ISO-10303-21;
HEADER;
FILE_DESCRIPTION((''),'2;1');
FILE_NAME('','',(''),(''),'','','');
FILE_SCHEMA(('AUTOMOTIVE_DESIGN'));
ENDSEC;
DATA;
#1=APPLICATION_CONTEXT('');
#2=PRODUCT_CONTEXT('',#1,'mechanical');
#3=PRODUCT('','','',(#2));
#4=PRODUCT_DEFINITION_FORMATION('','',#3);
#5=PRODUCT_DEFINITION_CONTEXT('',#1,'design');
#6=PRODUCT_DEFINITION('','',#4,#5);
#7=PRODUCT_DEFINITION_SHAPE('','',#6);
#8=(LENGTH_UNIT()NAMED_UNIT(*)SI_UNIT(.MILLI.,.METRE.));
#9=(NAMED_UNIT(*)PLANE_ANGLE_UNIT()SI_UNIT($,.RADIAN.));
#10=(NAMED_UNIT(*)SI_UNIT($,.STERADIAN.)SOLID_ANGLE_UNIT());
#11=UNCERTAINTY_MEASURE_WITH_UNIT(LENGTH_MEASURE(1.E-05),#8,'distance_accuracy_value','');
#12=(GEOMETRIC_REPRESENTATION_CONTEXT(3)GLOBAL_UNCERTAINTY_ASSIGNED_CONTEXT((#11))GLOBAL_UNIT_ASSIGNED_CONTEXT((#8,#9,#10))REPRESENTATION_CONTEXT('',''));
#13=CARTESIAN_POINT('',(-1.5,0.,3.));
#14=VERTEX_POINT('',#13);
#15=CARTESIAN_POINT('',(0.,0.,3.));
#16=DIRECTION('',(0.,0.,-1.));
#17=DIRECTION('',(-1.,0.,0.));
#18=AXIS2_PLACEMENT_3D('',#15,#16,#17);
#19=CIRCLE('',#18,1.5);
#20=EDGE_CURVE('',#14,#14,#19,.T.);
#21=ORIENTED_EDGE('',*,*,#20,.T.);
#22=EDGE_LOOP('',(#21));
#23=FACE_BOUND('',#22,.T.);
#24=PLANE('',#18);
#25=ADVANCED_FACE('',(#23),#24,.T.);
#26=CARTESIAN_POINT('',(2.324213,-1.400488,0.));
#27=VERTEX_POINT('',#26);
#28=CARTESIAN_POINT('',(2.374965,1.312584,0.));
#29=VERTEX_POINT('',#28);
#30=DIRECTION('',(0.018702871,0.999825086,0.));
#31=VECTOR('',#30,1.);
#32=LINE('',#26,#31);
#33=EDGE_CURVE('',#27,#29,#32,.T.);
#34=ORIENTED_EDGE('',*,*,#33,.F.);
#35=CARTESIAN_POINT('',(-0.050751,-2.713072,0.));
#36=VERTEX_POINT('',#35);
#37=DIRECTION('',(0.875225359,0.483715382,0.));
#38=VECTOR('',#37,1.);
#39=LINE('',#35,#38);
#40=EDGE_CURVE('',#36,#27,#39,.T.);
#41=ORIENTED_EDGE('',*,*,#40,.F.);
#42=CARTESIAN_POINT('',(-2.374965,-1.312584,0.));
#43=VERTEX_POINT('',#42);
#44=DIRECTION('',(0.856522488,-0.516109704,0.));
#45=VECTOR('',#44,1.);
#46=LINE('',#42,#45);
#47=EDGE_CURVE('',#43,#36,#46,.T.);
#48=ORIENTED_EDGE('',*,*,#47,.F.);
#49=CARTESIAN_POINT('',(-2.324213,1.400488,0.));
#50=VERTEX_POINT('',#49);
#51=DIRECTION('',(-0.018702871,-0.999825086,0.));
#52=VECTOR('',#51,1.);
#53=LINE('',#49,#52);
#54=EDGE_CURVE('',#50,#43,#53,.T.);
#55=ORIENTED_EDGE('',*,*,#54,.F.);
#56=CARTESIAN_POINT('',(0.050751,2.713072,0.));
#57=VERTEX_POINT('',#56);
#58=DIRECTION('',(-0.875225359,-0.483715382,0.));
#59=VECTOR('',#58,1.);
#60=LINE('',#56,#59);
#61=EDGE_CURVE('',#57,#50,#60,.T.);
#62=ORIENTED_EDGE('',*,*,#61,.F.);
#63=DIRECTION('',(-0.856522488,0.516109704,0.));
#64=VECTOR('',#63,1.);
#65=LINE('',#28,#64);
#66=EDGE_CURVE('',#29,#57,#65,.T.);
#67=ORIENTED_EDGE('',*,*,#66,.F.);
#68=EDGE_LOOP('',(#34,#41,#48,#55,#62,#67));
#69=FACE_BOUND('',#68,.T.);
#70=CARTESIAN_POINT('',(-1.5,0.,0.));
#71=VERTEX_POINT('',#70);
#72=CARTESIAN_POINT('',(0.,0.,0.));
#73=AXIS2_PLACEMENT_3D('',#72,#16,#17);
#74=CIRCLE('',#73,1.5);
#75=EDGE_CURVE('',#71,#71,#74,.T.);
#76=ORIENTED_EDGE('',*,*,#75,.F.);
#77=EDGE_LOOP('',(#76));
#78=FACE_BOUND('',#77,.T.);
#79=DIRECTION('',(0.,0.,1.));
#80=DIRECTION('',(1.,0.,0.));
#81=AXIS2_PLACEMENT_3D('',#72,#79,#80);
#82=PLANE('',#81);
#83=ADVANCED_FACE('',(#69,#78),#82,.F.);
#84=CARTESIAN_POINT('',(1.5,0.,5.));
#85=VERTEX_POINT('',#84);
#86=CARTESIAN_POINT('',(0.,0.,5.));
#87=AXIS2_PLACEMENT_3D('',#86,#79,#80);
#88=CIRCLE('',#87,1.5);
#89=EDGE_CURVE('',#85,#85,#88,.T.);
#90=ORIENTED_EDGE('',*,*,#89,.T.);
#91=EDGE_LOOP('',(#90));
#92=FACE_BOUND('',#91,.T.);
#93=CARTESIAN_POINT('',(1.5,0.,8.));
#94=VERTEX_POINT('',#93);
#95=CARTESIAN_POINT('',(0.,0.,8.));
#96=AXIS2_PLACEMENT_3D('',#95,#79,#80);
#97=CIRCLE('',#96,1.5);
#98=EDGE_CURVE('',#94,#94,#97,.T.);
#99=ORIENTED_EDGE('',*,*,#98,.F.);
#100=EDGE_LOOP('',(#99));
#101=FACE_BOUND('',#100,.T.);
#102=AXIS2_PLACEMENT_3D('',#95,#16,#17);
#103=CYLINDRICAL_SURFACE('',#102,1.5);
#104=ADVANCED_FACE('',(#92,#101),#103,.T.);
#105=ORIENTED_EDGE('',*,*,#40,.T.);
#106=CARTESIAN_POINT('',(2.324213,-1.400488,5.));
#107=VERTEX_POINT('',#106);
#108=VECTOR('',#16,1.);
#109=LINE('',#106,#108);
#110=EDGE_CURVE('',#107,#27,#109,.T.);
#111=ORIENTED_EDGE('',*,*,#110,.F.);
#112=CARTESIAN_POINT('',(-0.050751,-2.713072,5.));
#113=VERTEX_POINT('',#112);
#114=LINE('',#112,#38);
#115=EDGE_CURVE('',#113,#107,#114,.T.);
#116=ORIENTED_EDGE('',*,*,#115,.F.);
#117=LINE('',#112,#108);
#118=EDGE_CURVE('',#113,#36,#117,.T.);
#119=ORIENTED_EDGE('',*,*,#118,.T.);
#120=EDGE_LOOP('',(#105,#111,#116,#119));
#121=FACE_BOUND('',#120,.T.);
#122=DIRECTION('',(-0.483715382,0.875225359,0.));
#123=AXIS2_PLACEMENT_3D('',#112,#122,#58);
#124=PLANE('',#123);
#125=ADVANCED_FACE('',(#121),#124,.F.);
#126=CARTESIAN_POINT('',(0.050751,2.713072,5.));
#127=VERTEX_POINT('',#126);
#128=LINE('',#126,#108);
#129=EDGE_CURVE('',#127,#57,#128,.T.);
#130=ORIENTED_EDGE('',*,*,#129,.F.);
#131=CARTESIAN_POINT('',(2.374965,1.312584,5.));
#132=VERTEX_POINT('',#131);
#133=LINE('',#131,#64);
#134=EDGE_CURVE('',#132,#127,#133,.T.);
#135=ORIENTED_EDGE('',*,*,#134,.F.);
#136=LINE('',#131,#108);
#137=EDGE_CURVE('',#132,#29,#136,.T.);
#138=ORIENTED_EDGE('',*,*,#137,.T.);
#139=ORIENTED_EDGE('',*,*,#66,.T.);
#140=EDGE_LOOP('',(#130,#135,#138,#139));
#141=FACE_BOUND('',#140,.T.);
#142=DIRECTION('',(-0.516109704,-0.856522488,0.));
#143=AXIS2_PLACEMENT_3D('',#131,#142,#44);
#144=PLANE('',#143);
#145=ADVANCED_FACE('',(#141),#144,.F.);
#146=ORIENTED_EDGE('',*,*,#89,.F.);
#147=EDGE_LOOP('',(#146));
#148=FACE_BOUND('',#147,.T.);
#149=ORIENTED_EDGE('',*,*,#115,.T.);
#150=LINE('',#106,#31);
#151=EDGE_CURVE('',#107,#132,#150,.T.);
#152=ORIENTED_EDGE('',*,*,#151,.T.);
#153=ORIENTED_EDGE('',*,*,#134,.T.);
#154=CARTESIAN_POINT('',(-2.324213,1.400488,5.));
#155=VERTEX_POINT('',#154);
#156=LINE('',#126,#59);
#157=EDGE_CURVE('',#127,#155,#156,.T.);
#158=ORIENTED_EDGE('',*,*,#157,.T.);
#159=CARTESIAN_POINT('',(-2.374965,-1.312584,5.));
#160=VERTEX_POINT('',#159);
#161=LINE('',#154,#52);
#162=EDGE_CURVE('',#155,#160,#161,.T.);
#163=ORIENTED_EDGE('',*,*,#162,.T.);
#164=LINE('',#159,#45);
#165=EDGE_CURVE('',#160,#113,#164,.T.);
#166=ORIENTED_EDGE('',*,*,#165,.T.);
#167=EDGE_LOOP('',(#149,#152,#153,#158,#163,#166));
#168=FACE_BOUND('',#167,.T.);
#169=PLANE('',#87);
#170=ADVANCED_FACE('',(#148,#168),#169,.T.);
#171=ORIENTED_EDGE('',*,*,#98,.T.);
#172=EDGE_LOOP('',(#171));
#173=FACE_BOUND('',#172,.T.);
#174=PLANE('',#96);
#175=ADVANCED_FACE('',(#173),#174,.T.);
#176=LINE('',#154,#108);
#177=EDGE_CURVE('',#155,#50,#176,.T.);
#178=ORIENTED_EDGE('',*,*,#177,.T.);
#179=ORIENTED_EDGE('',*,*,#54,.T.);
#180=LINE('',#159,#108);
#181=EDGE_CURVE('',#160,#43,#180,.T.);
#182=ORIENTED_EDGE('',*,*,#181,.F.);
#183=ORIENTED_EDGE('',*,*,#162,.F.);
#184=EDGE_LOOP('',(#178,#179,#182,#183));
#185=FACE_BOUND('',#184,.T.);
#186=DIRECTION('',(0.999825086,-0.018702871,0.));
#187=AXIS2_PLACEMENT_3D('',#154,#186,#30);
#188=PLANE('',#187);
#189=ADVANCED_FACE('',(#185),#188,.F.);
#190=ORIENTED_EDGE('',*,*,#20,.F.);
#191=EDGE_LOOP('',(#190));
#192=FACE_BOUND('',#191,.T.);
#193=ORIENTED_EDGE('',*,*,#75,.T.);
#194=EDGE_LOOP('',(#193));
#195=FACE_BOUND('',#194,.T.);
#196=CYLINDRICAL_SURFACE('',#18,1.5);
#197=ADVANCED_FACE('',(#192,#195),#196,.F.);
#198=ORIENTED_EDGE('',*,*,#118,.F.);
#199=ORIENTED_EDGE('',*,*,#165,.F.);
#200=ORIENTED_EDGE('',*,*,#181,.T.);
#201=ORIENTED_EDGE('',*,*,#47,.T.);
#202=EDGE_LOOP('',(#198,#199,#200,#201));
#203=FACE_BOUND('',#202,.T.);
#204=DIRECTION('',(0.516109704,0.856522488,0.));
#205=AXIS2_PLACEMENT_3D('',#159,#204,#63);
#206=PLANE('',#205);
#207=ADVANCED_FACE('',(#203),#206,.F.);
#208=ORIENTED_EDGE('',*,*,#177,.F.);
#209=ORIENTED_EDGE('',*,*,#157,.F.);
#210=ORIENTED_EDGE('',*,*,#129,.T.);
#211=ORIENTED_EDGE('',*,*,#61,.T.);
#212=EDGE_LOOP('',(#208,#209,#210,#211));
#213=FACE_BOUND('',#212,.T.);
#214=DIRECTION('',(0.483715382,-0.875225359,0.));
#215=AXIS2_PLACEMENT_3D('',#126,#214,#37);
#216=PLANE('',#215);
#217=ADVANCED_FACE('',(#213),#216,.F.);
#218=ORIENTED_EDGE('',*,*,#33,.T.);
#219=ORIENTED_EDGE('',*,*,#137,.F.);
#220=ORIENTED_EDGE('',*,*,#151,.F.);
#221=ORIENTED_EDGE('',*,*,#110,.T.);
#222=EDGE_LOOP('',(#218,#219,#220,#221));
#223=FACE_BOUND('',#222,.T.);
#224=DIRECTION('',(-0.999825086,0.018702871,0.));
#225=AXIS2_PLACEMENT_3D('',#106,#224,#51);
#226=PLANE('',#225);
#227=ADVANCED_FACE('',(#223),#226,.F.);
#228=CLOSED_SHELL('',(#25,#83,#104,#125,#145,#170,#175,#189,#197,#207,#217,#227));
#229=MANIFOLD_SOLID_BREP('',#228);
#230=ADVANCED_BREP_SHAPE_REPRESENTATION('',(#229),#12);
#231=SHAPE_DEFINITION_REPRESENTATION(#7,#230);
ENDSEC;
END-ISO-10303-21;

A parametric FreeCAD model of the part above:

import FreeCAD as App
import Part
import Sketcher
from FreeCAD import Vector
Q = App.Units.Quantity

doc = App.newDocument("Part")
body = doc.addObject("PartDesign::Body", "Body")

sketch1 = body.newObject("Sketcher::SketchObject", "Sketch")
sketch1.AttachmentSupport = (doc.getObject("XY_Plane"), [""])
sketch1.MapMode = "FlatFace"
sketch1.addGeometry([
    Part.LineSegment(Vector(-2.3, 1.4, 0), Vector(-2.4, -1.3, 0)),
    Part.LineSegment(Vector(-2.4, -1.3, 0), Vector(-0.1, -2.7, 0)),
    Part.LineSegment(Vector(-0.1, -2.7, 0), Vector(2.3, -1.4, 0)),
    Part.LineSegment(Vector(2.3, -1.4, 0), Vector(2.4, 1.3, 0)),
    Part.LineSegment(Vector(2.4, 1.3, 0), Vector(0.1, 2.7, 0)),
    Part.LineSegment(Vector(0.1, 2.7, 0), Vector(-2.3, 1.4, 0)),
], False)
sketch1.addConstraint([
    Sketcher.Constraint("Coincident", 0, 2, 1, 1),
    Sketcher.Constraint("Coincident", 1, 2, 2, 1),
    Sketcher.Constraint("Coincident", 2, 2, 3, 1),
    Sketcher.Constraint("Coincident", 3, 2, 4, 1),
    Sketcher.Constraint("Coincident", 4, 2, 5, 1),
    Sketcher.Constraint("Coincident", 5, 2, 0, 1),
    Sketcher.Constraint("Symmetric", 0, 2, 3, 2, -1, 1),
    Sketcher.Constraint("Symmetric", 1, 2, 4, 2, -1, 1),
    Sketcher.Constraint("Symmetric", 2, 2, 5, 2, -1, 1),
    Sketcher.Constraint("Equal", 0, 1),
    Sketcher.Constraint("Equal", 1, 2),
    Sketcher.Constraint("DistanceX", 1, 2, -1, 1, Q("0.050751 mm")),
    Sketcher.Constraint("DistanceY", 1, 2, -1, 1, Q("2.713072 mm")),
    Sketcher.Constraint("DistanceX", 2, 2, 3, 2, Q("0.050751 mm")),
    Sketcher.Constraint("DistanceY", 2, 2, 3, 2, Q("2.713072 mm")),
])
pad1 = body.newObject("PartDesign::Pad", "Pad")
pad1.Profile = sketch1
pad1.Length = 5

sketch2 = body.newObject("Sketcher::SketchObject", "Sketch001")
sketch2.AttachmentSupport = (doc.getObject("XY_Plane"), [""])
sketch2.MapMode = "FlatFace"
sketch2.AttachmentOffset = App.Placement(Vector(0, 0, 5), App.Rotation())
sketch2.addGeometry(Part.Circle(Vector(0, 0, 0), Vector(0, 0, 1), 1.5), False)
sketch2.addConstraint([
    Sketcher.Constraint("Coincident", 0, 3, -1, 1),
    Sketcher.Constraint("Diameter", 0, Q("3 mm")),
])
pad2 = body.newObject("PartDesign::Pad", "Pad001")
pad2.Profile = sketch2
pad2.Length = 3

sketch3 = body.newObject("Sketcher::SketchObject", "Sketch002")
sketch3.AttachmentSupport = (doc.getObject("XY_Plane"), [""])
sketch3.MapMode = "FlatFace"
sketch3.addGeometry(Part.Circle(Vector(0, 0, 0), Vector(0, 0, 1), 1.5), False)
sketch3.addConstraint([
    Sketcher.Constraint("Coincident", 0, 3, -1, 1),
    Sketcher.Constraint("Diameter", 0, Q("3 mm")),
])
pocket1 = body.newObject("PartDesign::Pocket", "Pocket")
pocket1.Profile = sketch3
pocket1.Length = 3
pocket1.Reversed = True

doc.recompute()
